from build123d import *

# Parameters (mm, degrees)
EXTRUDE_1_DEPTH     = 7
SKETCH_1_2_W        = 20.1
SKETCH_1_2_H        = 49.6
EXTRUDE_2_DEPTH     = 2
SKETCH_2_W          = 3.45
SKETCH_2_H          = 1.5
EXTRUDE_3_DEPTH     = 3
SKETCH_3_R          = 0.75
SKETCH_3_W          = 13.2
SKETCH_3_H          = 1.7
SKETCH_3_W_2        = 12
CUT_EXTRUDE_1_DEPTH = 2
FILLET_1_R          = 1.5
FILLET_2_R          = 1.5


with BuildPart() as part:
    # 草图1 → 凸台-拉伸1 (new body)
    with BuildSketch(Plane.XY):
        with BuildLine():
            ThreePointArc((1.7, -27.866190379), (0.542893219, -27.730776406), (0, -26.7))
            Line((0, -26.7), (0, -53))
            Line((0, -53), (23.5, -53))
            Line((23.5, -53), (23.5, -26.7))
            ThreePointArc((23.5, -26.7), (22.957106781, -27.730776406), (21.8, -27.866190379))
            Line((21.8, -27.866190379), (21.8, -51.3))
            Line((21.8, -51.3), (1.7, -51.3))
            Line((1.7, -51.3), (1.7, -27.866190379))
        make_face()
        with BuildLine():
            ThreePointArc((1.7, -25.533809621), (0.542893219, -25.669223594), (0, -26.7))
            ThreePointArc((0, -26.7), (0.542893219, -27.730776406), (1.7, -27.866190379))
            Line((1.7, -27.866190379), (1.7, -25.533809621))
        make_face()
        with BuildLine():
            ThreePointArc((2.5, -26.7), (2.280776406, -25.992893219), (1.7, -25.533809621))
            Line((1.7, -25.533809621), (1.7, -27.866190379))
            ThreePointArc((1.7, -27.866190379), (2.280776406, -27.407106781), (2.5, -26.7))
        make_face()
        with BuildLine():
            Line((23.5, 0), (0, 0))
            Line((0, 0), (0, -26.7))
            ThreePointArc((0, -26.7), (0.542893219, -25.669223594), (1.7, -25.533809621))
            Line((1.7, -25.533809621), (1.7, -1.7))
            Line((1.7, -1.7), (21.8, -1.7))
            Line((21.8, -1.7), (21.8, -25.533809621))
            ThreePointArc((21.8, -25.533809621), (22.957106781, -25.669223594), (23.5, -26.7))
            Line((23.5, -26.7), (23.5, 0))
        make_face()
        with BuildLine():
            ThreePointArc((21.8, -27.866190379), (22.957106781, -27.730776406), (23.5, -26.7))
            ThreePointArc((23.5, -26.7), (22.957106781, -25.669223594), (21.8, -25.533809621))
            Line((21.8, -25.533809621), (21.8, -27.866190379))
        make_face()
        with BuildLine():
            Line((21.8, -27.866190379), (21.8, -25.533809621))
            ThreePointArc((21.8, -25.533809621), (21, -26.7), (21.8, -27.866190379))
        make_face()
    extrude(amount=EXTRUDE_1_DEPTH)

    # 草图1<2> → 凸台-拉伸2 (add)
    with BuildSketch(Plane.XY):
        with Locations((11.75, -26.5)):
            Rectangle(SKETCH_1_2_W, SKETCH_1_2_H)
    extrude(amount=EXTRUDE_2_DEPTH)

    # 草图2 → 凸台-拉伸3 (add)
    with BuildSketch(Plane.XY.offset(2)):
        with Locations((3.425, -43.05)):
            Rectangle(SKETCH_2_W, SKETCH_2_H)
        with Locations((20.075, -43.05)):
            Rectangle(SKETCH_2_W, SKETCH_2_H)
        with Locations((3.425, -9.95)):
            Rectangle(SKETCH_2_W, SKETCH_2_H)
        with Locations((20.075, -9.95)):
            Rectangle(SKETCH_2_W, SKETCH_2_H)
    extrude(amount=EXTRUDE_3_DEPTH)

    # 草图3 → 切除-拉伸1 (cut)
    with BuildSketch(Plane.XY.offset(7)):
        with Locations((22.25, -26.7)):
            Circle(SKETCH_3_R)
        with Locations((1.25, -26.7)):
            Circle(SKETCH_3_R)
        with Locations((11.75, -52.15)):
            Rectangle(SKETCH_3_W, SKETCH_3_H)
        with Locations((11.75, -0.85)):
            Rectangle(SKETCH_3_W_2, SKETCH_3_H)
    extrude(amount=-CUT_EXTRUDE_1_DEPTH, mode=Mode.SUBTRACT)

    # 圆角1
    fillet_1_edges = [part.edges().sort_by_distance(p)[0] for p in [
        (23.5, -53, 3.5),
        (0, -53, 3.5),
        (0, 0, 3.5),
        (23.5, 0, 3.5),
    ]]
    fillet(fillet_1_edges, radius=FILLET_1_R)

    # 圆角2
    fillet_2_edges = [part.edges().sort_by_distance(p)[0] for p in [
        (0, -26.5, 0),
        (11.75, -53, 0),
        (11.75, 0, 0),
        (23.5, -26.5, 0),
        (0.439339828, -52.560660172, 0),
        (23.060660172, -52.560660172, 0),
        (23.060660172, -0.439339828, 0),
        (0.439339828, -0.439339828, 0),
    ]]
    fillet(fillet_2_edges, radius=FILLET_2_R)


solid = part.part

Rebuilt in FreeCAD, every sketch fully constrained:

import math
import FreeCAD as App
import Part
import Sketcher
Q = App.Units.Quantity


def edges_at(feature, points):
    """Names of the edges that pass closest to the given points."""
    edges = feature.Shape.Edges
    near = lambda p: min(range(len(edges)), key=lambda i: edges[i].distToShape(Part.Vertex(*p))[0])
    return sorted({f"Edge{near(p) + 1}" for p in points})


def add_polygon(sketch, points):
    """Adds a closed chain of lines whose ends are joined by coincident constraints."""
    first, n = sketch.GeometryCount, len(points)
    for a, b in zip(points, points[1:] + points[:1]):
        sketch.addGeometry(Part.LineSegment(App.Vector(*a, 0), App.Vector(*b, 0)), False)
    for i in range(n):
        sketch.addConstraint(Sketcher.Constraint("Coincident", first + i, 2, first + (i + 1) % n, 1))

doc = App.newDocument("Part")
params = doc.addObject("Spreadsheet::Sheet", "Params")
for row, (alias, value) in enumerate([
    ("sketch1_height", "53 mm"),
    ("sketch1_radius", "1.25 mm"),
    ("sketch1_width", "23.5 mm"),
    ("sketch1_width2", "20.1 mm"),
    ("pad1_length", "7 mm"),
    ("sketch2_width", "20.1 mm"),
    ("sketch2_height", "49.6 mm"),
    ("pad2_length", "2 mm"),
    ("sketch3_height", "1.5 mm"),
    ("sketch3_width", "3.45 mm"),
    ("pad3_length", "3 mm"),
    ("sketch4_diameter", "1.5 mm"),
    ("sketch4_width", "12 mm"),
    ("sketch4_width2", "13.2 mm"),
    ("sketch4_height", "1.7 mm"),
    ("pocket1_length", "2 mm"),
    ("fillet_radius", "1.5 mm"),
    ("fillet2_radius", "1.5 mm"),
], start=1):
    params.set(f"A{row}", alias)
    params.set(f"B{row}", "=" + value)
    params.setAlias(f"B{row}", alias)

body = doc.addObject("PartDesign::Body", "Body")

sketch1 = body.newObject("Sketcher::SketchObject", "Sketch")
sketch1.AttachmentSupport = (doc.getObject("XY_Plane"), [""])
sketch1.MapMode = "FlatFace"
add_polygon(sketch1, [(23.5, -53), (23.5, 0), (0, 0), (0, -53)])
sketch1.addGeometry(Part.LineSegment(App.Vector(21.8, -1.7, 0), App.Vector(21.8, -25.5, 0)), False)
sketch1.addGeometry(Part.ArcOfCircle(Part.Circle(App.Vector(22.2, -26.7, 0), App.Vector(0, 0, 1), 1.2), math.radians(111), math.radians(249)), False)
sketch1.addGeometry(Part.LineSegment(App.Vector(21.8, -27.9, 0), App.Vector(21.8, -51.3, 0)), False)
sketch1.addGeometry(Part.LineSegment(App.Vector(21.8, -51.3, 0), App.Vector(1.7, -51.3, 0)), False)
sketch1.addGeometry(Part.LineSegment(App.Vector(1.7, -51.3, 0), App.Vector(1.7, -27.9, 0)), False)
sketch1.addGeometry(Part.ArcOfCircle(Part.Circle(App.Vector(1.2, -26.7, 0), App.Vector(0, 0, 1), 1.3), math.radians(-69), math.radians(0)), False)
sketch1.addGeometry(Part.ArcOfCircle(Part.Circle(App.Vector(1.2, -26.7, 0), App.Vector(0, 0, 1), 1.3), math.radians(0), math.radians(69)), False)
sketch1.addGeometry(Part.LineSegment(App.Vector(1.7, -25.5, 0), App.Vector(1.7, -1.7, 0)), False)
sketch1.addGeometry(Part.LineSegment(App.Vector(1.7, -1.7, 0), App.Vector(21.8, -1.7, 0)), False)
sketch1.addConstraint(Sketcher.Constraint("Coincident", 4, 2, 5, 1))
sketch1.addConstraint(Sketcher.Constraint("Coincident", 5, 2, 6, 1))
sketch1.addConstraint(Sketcher.Constraint("Coincident", 6, 2, 7, 1))
sketch1.addConstraint(Sketcher.Constraint("Coincident", 7, 2, 8, 1))
sketch1.addConstraint(Sketcher.Constraint("Coincident", 8, 2, 9, 1))
sketch1.addConstraint(Sketcher.Constraint("Tangent", 9, 2, 10, 1))
sketch1.addConstraint(Sketcher.Constraint("Coincident", 10, 2, 11, 1))
sketch1.addConstraint(Sketcher.Constraint("Coincident", 11, 2, 12, 1))
sketch1.addConstraint(Sketcher.Constraint("Coincident", 12, 2, 4, 1))
sketch1.addConstraint(Sketcher.Constraint("Vertical", 0))
sketch1.addConstraint(Sketcher.Constraint("Horizontal", 1))
sketch1.addConstraint(Sketcher.Constraint("Vertical", 2))
sketch1.addConstraint(Sketcher.Constraint("Horizontal", 3))
sketch1.addConstraint(Sketcher.Constraint("Vertical", 4))
sketch1.addConstraint(Sketcher.Constraint("Vertical", 6))
sketch1.addConstraint(Sketcher.Constraint("Horizontal", 7))
sketch1.addConstraint(Sketcher.Constraint("Vertical", 8))
sketch1.addConstraint(Sketcher.Constraint("Vertical", 11))
sketch1.addConstraint(Sketcher.Constraint("Horizontal", 12))
sketch1.addConstraint(Sketcher.Constraint("Coincident", 1, 2, -1, 1))
sketch1.addConstraint(Sketcher.Constraint("Equal", 5, 9))
sketch1.addConstraint(Sketcher.Constraint("Equal", 9, 10))
sketch1.addConstraint(Sketcher.Constraint("Horizontal", 5, 3, 9, 3))
sketch1.addConstraint(Sketcher.Constraint("Horizontal", 5, 2, 8, 2))
sketch1.addConstraint(Sketcher.Constraint("Horizontal", 10, 3, 9, 2))
sketch1.addConstraint(Sketcher.Constraint("Horizontal", 4, 2, 10, 2))
sketch1.addConstraint(Sketcher.Constraint("Vertical", 4, 2, 5, 2))
sketch1.addConstraint(Sketcher.Constraint("DistanceY", 0, 1, 0, 2, Q("53 mm")))
sketch1.addConstraint(Sketcher.Constraint("Radius", 5, Q("1.25 mm")))
sketch1.addConstraint(Sketcher.Constraint("DistanceX", 1, 2, 1, 1, Q("23.5 mm")))
sketch1.addConstraint(Sketcher.Constraint("DistanceX", 7, 2, 7, 1, Q("20.1 mm")))
sketch1.addConstraint(Sketcher.Constraint("DistanceX", 9, 3, 5, 3, Q("21 mm")))
sketch1.addConstraint(Sketcher.Constraint("DistanceY", 9, 3, 11, 2, Q("25 mm")))
sketch1.addConstraint(Sketcher.Constraint("DistanceY", 5, 3, -1, 1, Q("26.7 mm")))
sketch1.addConstraint(Sketcher.Constraint("DistanceX", -1, 1, 4, 2, Q("21.8 mm")))
sketch1.addConstraint(Sketcher.Constraint("DistanceY", 6, 2, -1, 1, Q("51.3 mm")))
sketch1.setExpression("Constraints[31]", "Params.sketch1_height")
sketch1.setExpression("Constraints[32]", "Params.sketch1_radius")
sketch1.setExpression("Constraints[33]", "Params.sketch1_width")
sketch1.setExpression("Constraints[34]", "Params.sketch1_width2")
pad1 = body.newObject("PartDesign::Pad", "Pad")
pad1.Profile = sketch1
pad1.setExpression("Length", "Params.pad1_length")

sketch2 = body.newObject("Sketcher::SketchObject", "Sketch001")
sketch2.AttachmentSupport = (doc.getObject("XY_Plane"), [""])
sketch2.MapMode = "FlatFace"
add_polygon(sketch2, [(2, -2), (2, -51), (22, -51), (22, -2)])
sketch2.addConstraint(Sketcher.Constraint("Vertical", 0))
sketch2.addConstraint(Sketcher.Constraint("Horizontal", 1))
sketch2.addConstraint(Sketcher.Constraint("Vertical", 2))
sketch2.addConstraint(Sketcher.Constraint("Horizontal", 3))
sketch2.addConstraint(Sketcher.Constraint("DistanceX", 1, 1, 1, 2, Q("20.1 mm")))
sketch2.addConstraint(Sketcher.Constraint("DistanceY", 0, 2, 0, 1, Q("49.6 mm")))
sketch2.addConstraint(Sketcher.Constraint("DistanceX", -1, 1, 0, 2, Q("1.7 mm")))
sketch2.addConstraint(Sketcher.Constraint("DistanceY", 0, 2, -1, 1, Q("51.3 mm")))
sketch2.setExpression("Constraints[8]", "Params.sketch2_width")
sketch2.setExpression("Constraints[9]", "Params.sketch2_height")
pad2 = body.newObject("PartDesign::Pad", "Pad001")
pad2.Profile = sketch2
pad2.setExpression("Length", "Params.pad2_length")

sketch3 = body.newObject("Sketcher::SketchObject", "Sketch002")
sketch3.AttachmentSupport = (doc.getObject("XY_Plane"), [""])
sketch3.MapMode = "FlatFace"
sketch3.AttachmentOffset = App.Placement(App.Vector(0, 0, 2), App.Rotation())
add_polygon(sketch3, [(1.7, -42.3), (1.7, -43.8), (5.2, -43.8), (5.2, -42.3)])
add_polygon(sketch3, [(18.4, -42.3), (18.4, -43.8), (21.8, -43.8), (21.8, -42.3)])
add_polygon(sketch3, [(1.7, -9.2), (1.7, -10.7), (5.2, -10.7), (5.2, -9.2)])
add_polygon(sketch3, [(18.4, -9.2), (18.4, -10.7), (21.8, -10.7), (21.8, -9.2)])
sketch3.addConstraint(Sketcher.Constraint("Vertical", 0))
sketch3.addConstraint(Sketcher.Constraint("Horizontal", 1))
sketch3.addConstraint(Sketcher.Constraint("Vertical", 2))
sketch3.addConstraint(Sketcher.Constraint("Horizontal", 3))
sketch3.addConstraint(Sketcher.Constraint("Vertical", 4))
sketch3.addConstraint(Sketcher.Constraint("Horizontal", 5))
sketch3.addConstraint(Sketcher.Constraint("Vertical", 6))
sketch3.addConstraint(Sketcher.Constraint("Horizontal", 7))
sketch3.addConstraint(Sketcher.Constraint("Vertical", 8))
sketch3.addConstraint(Sketcher.Constraint("Horizontal", 9))
sketch3.addConstraint(Sketcher.Constraint("Vertical", 10))
sketch3.addConstraint(Sketcher.Constraint("Horizontal", 11))
sketch3.addConstraint(Sketcher.Constraint("Vertical", 12))
sketch3.addConstraint(Sketcher.Constraint("Horizontal", 13))
sketch3.addConstraint(Sketcher.Constraint("Vertical", 14))
sketch3.addConstraint(Sketcher.Constraint("Horizontal", 15))
sketch3.addConstraint(Sketcher.Constraint("Horizontal", 1, 2, 4, 2))
sketch3.addConstraint(Sketcher.Constraint("Horizontal", 3, 2, 6, 2))
sketch3.addConstraint(Sketcher.Constraint("Horizontal", 9, 2, 12, 2))
sketch3.addConstraint(Sketcher.Constraint("Horizontal", 11, 2, 14, 2))
sketch3.addConstraint(Sketcher.Constraint("Vertical", 3, 2, 8, 2))
sketch3.addConstraint(Sketcher.Constraint("Vertical", 2, 2, 9, 2))
sketch3.addConstraint(Sketcher.Constraint("Vertical", 7, 2, 12, 2))
sketch3.addConstraint(Sketcher.Constraint("Vertical", 6, 2, 13, 2))
sketch3.addConstraint(Sketcher.Constraint("Equal", 3, 5))
sketch3.addConstraint(Sketcher.Constraint("Equal", 6, 8))
sketch3.addConstraint(Sketcher.Constraint("DistanceY", 0, 2, 0, 1, Q("1.5 mm")))
sketch3.addConstraint(Sketcher.Constraint("DistanceX", 1, 1, 1, 2, Q("3.45 mm")))
sketch3.addConstraint(Sketcher.Constraint("DistanceX", -1, 1, 0, 2, Q("1.7 mm")))
sketch3.addConstraint(Sketcher.Constraint("DistanceY", 0, 2, -1, 1, Q("43.8 mm")))
sketch3.addConstraint(Sketcher.Constraint("DistanceX", -1, 1, 5, 2, Q("21.8 mm")))
sketch3.addConstraint(Sketcher.Constraint("DistanceY", 8, 2, -1, 1, Q("10.7 mm")))
sketch3.setExpression("Constraints[42]", "Params.sketch3_height")
sketch3.setExpression("Constraints[43]", "Params.sketch3_width")
pad3 = body.newObject("PartDesign::Pad", "Pad002")
pad3.Profile = sketch3
pad3.setExpression("Length", "Params.pad3_length")

sketch4 = body.newObject("Sketcher::SketchObject", "Sketch003")
sketch4.AttachmentSupport = (doc.getObject("XY_Plane"), [""])
sketch4.MapMode = "FlatFace"
sketch4.AttachmentOffset = App.Placement(App.Vector(0, 0, 7), App.Rotation())
sketch4.addGeometry(Part.Circle(App.Vector(22.2, -26.7, 0), App.Vector(0, 0, 1), 0.8), False)
sketch4.addGeometry(Part.Circle(App.Vector(1.2, -26.7, 0), App.Vector(0, 0, 1), 0.8), False)
add_polygon(sketch4, [(5.2, -51.3), (5.2, -53), (18.4, -53), (18.4, -51.3)])
add_polygon(sketch4, [(5.8, 0), (5.8, -1.7), (17.8, -1.7), (17.8, 0)])
sketch4.addConstraint(Sketcher.Constraint("Vertical", 2))
sketch4.addConstraint(Sketcher.Constraint("Horizontal", 3))
sketch4.addConstraint(Sketcher.Constraint("Vertical", 4))
sketch4.addConstraint(Sketcher.Constraint("Horizontal", 5))
sketch4.addConstraint(Sketcher.Constraint("Vertical", 6))
sketch4.addConstraint(Sketcher.Constraint("Horizontal", 7))
sketch4.addConstraint(Sketcher.Constraint("Vertical", 8))
sketch4.addConstraint(Sketcher.Constraint("Horizontal", 9))
sketch4.addConstraint(Sketcher.Constraint("Equal", 0, 1))
sketch4.addConstraint(Sketcher.Constraint("PointOnObject", 8, 2, -1))
sketch4.addConstraint(Sketcher.Constraint("Horizontal", 0, 3, 1, 3))
sketch4.addConstraint(Sketcher.Constraint("Equal", 4, 6))
sketch4.addConstraint(Sketcher.Constraint("Diameter", 0, Q("1.5 mm")))
sketch4.addConstraint(Sketcher.Constraint("DistanceX", 7, 1, 7, 2, Q("12 mm")))
sketch4.addConstraint(Sketcher.Constraint("DistanceX", 3, 1, 3, 2, Q("13.2 mm")))
sketch4.addConstraint(Sketcher.Constraint("DistanceY", 2, 2, 2, 1, Q("1.7 mm")))
sketch4.addConstraint(Sketcher.Constraint("DistanceY", 2, 2, -1, 1, Q("53 mm")))
sketch4.addConstraint(Sketcher.Constraint("DistanceX", 1, 3, 0, 3, Q("21 mm")))
sketch4.addConstraint(Sketcher.Constraint("DistanceY", 1, 3, 6, 2, Q("25 mm")))
sketch4.addConstraint(Sketcher.Constraint("DistanceX", 1, 3, 2, 2, Q("3.9 mm")))
sketch4.addConstraint(Sketcher.Constraint("DistanceX", 1, 3, 6, 2, Q("4.5 mm")))
sketch4.addConstraint(Sketcher.Constraint("DistanceX", -1, 1, 0, 3, Q("22.25 mm")))
sketch4.setExpression("Constraints[20]", "Params.sketch4_diameter")
sketch4.setExpression("Constraints[21]", "Params.sketch4_width")
sketch4.setExpression("Constraints[22]", "Params.sketch4_width2")
sketch4.setExpression("Constraints[23]", "Params.sketch4_height")
pocket1 = body.newObject("PartDesign::Pocket", "Pocket")
pocket1.Profile = sketch4
pocket1.setExpression("Length", "Params.pocket1_length")
doc.recompute()

fillet = body.newObject("PartDesign::Fillet", "Fillet")
fillet.Base = (pocket1, edges_at(pocket1, [
    (23.5, -53, 3.5),
    (0, -53, 3.5),
    (0, 0, 3.5),
    (23.5, 0, 3.5),
]))
fillet.setExpression("Radius", "Params.fillet_radius")
doc.recompute()

fillet2 = body.newObject("PartDesign::Fillet", "Fillet001")
fillet2.Base = (fillet, edges_at(fillet, [
    (0, -26.5, 0),
    (11.75, -53, 0),
    (11.75, 0, 0),
    (23.5, -26.5, 0),
    (0.439, -52.561, 0),
    (23.061, -52.561, 0),
    (23.061, -0.439, 0),
    (0.439, -0.439, 0),
]))
fillet2.setExpression("Radius", "Params.fillet2_radius")

doc.recompute()
